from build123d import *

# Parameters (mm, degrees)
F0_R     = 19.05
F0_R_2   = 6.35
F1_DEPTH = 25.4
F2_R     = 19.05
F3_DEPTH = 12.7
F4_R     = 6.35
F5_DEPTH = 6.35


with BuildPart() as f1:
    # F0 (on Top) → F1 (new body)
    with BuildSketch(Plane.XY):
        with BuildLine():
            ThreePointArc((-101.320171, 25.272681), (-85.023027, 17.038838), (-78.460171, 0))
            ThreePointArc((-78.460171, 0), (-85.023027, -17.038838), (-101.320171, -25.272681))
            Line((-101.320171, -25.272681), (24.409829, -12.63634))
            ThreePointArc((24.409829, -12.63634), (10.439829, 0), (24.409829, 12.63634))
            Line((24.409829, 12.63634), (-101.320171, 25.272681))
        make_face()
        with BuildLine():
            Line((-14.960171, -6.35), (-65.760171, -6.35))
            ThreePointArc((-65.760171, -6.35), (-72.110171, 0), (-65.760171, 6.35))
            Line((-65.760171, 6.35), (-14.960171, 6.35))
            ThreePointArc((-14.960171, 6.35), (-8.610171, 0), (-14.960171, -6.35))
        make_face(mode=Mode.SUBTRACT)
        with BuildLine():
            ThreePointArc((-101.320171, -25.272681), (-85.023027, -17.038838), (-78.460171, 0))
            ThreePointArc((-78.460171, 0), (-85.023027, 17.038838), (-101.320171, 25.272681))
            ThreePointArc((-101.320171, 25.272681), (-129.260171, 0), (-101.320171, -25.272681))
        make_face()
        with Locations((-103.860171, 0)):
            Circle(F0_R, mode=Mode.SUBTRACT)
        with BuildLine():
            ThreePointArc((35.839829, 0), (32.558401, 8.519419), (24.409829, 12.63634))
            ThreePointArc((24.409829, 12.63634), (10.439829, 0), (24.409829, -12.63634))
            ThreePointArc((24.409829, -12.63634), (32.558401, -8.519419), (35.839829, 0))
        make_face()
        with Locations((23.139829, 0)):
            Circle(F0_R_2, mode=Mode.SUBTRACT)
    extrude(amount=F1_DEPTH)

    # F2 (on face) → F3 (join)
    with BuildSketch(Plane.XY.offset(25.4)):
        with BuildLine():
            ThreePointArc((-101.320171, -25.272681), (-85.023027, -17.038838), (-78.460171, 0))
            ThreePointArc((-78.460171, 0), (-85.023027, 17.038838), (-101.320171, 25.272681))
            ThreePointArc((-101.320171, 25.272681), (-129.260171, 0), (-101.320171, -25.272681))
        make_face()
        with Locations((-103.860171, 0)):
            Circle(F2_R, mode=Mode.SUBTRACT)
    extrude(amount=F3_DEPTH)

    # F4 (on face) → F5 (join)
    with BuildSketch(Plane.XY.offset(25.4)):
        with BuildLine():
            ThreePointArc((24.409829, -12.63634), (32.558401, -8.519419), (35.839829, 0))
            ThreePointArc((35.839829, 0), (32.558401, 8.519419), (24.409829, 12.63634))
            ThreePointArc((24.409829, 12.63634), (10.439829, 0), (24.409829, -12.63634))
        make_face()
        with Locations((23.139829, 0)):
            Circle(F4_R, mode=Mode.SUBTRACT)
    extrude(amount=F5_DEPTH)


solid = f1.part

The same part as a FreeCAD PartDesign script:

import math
import FreeCAD as App
import Part
import Sketcher
Q = App.Units.Quantity

doc = App.newDocument("Part")
body = doc.addObject("PartDesign::Body", "Body")

# Sketch on XY plane
sketch1 = body.newObject("Sketcher::SketchObject", "Sketch")
sketch1.AttachmentSupport = (doc.getObject("XY_Plane"), [""])
sketch1.MapMode = "FlatFace"
sketch1.addGeometry(Part.LineSegment(App.Vector(24.409829, 12.63634, 0), App.Vector(-101.320171, 25.272681, 0)), False)
sketch1.addGeometry(Part.ArcOfCircle(Part.Circle(App.Vector(-103.860171, 0, 0), App.Vector(0, 0, 1), 25.4), math.radians(84.26083), math.radians(275.73917)), False)
sketch1.addGeometry(Part.LineSegment(App.Vector(-101.320171, -25.272681, 0), App.Vector(24.409829, -12.63634, 0)), False)
sketch1.addGeometry(Part.ArcOfCircle(Part.Circle(App.Vector(23.13983, 0, 0), App.Vector(0, 0, 1), 12.699999), math.radians(-84.260832), math.radians(0.000001)), False)
sketch1.addGeometry(Part.ArcOfCircle(Part.Circle(App.Vector(23.13983, 0, 0), App.Vector(0, 0, 1), 12.699999), math.radians(-0.000001), math.radians(84.260832)), False)
sketch1.addGeometry(Part.Circle(App.Vector(-103.860171, 0, 0), App.Vector(0, 0, 1), 19.05), False)
sketch1.addGeometry(Part.ArcOfCircle(Part.Circle(App.Vector(-14.960171, 0, 0), App.Vector(0, 0, 1), 6.35), math.radians(-90), math.radians(90)), False)
sketch1.addGeometry(Part.LineSegment(App.Vector(-14.960171, -6.35, 0), App.Vector(-65.760171, -6.35, 0)), False)
sketch1.addGeometry(Part.ArcOfCircle(Part.Circle(App.Vector(-65.760171, 0, 0), App.Vector(0, 0, 1), 6.35), math.radians(90), math.radians(270)), False)
sketch1.addGeometry(Part.LineSegment(App.Vector(-65.760171, 6.35, 0), App.Vector(-14.960171, 6.35, 0)), False)
sketch1.addGeometry(Part.Circle(App.Vector(23.139829, 0, 0), App.Vector(0, 0, 1), 6.35), False)
sketch1.addConstraint(Sketcher.Constraint("Tangent", 0, 2, 1, 1))
sketch1.addConstraint(Sketcher.Constraint("Tangent", 1, 2, 2, 1))
sketch1.addConstraint(Sketcher.Constraint("Tangent", 2, 2, 3, 1))
sketch1.addConstraint(Sketcher.Constraint("Tangent", 3, 2, 4, 1))
sketch1.addConstraint(Sketcher.Constraint("Tangent", 4, 2, 0, 1))
sketch1.addConstraint(Sketcher.Constraint("Tangent", 6, 1, 7, 1))
sketch1.addConstraint(Sketcher.Constraint("Tangent", 7, 2, 8, 2))
sketch1.addConstraint(Sketcher.Constraint("Tangent", 8, 1, 9, 1))
sketch1.addConstraint(Sketcher.Constraint("Tangent", 9, 2, 6, 2))
sketch1.addConstraint(Sketcher.Constraint("Horizontal", 7))
sketch1.addConstraint(Sketcher.Constraint("Horizontal", 9))
sketch1.addConstraint(Sketcher.Constraint("Coincident", 5, 3, 1, 3))
sketch1.addConstraint(Sketcher.Constraint("Coincident", 10, 3, 3, 3))
sketch1.addConstraint(Sketcher.Constraint("Equal", 3, 4))
sketch1.addConstraint(Sketcher.Constraint("Equal", 8, 10))
sketch1.addConstraint(Sketcher.Constraint("Symmetric", 0, 2, 1, 2, -1))
sketch1.addConstraint(Sketcher.Constraint("PointOnObject", 6, 3, -1))
sketch1.addConstraint(Sketcher.Constraint("PointOnObject", 3, 2, -1))
sketch1.addConstraint(Sketcher.Constraint("Radius", 1, Q("1 in")))
sketch1.addConstraint(Sketcher.Constraint("Diameter", 5, Q("1.5 in")))
sketch1.addConstraint(Sketcher.Constraint("Diameter", 10, Q("0.5 in")))
sketch1.addConstraint(Sketcher.Constraint("Radius", 3, Q("0.5 in")))
sketch1.addConstraint(Sketcher.Constraint("DistanceX", 7, 2, 7, 1, Q("2 in")))
sketch1.addConstraint(Sketcher.Constraint("DistanceX", 1, 3, 3, 3, Q("5 in")))
sketch1.addConstraint(Sketcher.Constraint("DistanceX", 6, 3, 3, 2, Q("2 in")))
sketch1.addConstraint(Sketcher.Constraint("DistanceX", 1, 3, -1, 1, Q("103.860171 mm")))
pad1 = body.newObject("PartDesign::Pad", "Pad")
pad1.Profile = sketch1
pad1.Length = Q("1 in")

# Sketch on XY plane
sketch2 = body.newObject("Sketcher::SketchObject", "Sketch001")
sketch2.AttachmentSupport = (doc.getObject("XY_Plane"), [""])
sketch2.MapMode = "FlatFace"
sketch2.AttachmentOffset = App.Placement(App.Vector(0, 0, 1 * 25.4), App.Rotation())
sketch2.addGeometry(Part.ArcOfCircle(Part.Circle(App.Vector(-103.860172, 0, 0), App.Vector(0, 0, 1), 25.400001), math.radians(-84.260829), math.radians(-0.000001)), False)
sketch2.addGeometry(Part.ArcOfCircle(Part.Circle(App.Vector(-103.860172, 0, 0), App.Vector(0, 0, 1), 25.400001), math.radians(0.000001), math.radians(84.260829)), False)
sketch2.addGeometry(Part.ArcOfCircle(Part.Circle(App.Vector(-103.860171, 0, 0), App.Vector(0, 0, 1), 25.4), math.radians(84.26083), math.radians(275.73917)), False)
sketch2.addGeometry(Part.Circle(App.Vector(-103.860171, 0, 0), App.Vector(0, 0, 1), 19.05), False)
sketch2.addConstraint(Sketcher.Constraint("Tangent", 0, 2, 1, 1))
sketch2.addConstraint(Sketcher.Constraint("Tangent", 1, 2, 2, 1))
sketch2.addConstraint(Sketcher.Constraint("Tangent", 2, 2, 0, 1))
sketch2.addConstraint(Sketcher.Constraint("Coincident", 3, 3, 0, 3))
sketch2.addConstraint(Sketcher.Constraint("Symmetric", 1, 2, 2, 2, -1))
sketch2.addConstraint(Sketcher.Constraint("PointOnObject", 0, 2, -1))
sketch2.addConstraint(Sketcher.Constraint("Radius", 0, Q("1 in")))
sketch2.addConstraint(Sketcher.Constraint("Diameter", 3, Q("1.5 in")))
sketch2.addConstraint(Sketcher.Constraint("DistanceX", 0, 3, 1, 2, Q("0.1 in")))
sketch2.addConstraint(Sketcher.Constraint("DistanceX", 0, 3, -1, 1, Q("103.860172 mm")))
pad2 = body.newObject("PartDesign::Pad", "Pad001")
pad2.Profile = sketch2
pad2.Length = Q("0.5 in")

# Sketch on XY plane
sketch3 = body.newObject("Sketcher::SketchObject", "Sketch002")
sketch3.AttachmentSupport = (doc.getObject("XY_Plane"), [""])
sketch3.MapMode = "FlatFace"
sketch3.AttachmentOffset = App.Placement(App.Vector(0, 0, 1 * 25.4), App.Rotation())
sketch3.addGeometry(Part.ArcOfCircle(Part.Circle(App.Vector(23.13983, 0, 0), App.Vector(0, 0, 1), 12.699999), math.radians(-84.260832), math.radians(0.000001)), False)
sketch3.addGeometry(Part.ArcOfCircle(Part.Circle(App.Vector(23.13983, 0, 0), App.Vector(0, 0, 1), 12.699999), math.radians(-0.000001), math.radians(84.260832)), False)
sketch3.addGeometry(Part.ArcOfCircle(Part.Circle(App.Vector(23.139829, 0, 0), App.Vector(0, 0, 1), 12.7), math.radians(84.260827), math.radians(275.739173)), False)
sketch3.addGeometry(Part.Circle(App.Vector(23.139829, 0, 0), App.Vector(0, 0, 1), 6.35), False)
sketch3.addConstraint(Sketcher.Constraint("Tangent", 0, 2, 1, 1))
sketch3.addConstraint(Sketcher.Constraint("Tangent", 1, 2, 2, 1))
sketch3.addConstraint(Sketcher.Constraint("Tangent", 2, 2, 0, 1))
sketch3.addConstraint(Sketcher.Constraint("Coincident", 3, 3, 0, 3))
sketch3.addConstraint(Sketcher.Constraint("Symmetric", 1, 2, 2, 2, -1))
sketch3.addConstraint(Sketcher.Constraint("PointOnObject", 0, 2, -1))
sketch3.addConstraint(Sketcher.Constraint("Diameter", 3, Q("0.5 in")))
sketch3.addConstraint(Sketcher.Constraint("Radius", 0, Q("0.5 in")))
sketch3.addConstraint(Sketcher.Constraint("DistanceX", 1, 3, 1, 2, Q("0.05 in")))
sketch3.addConstraint(Sketcher.Constraint("DistanceX", -1, 1, 0, 3, Q("23.13983 mm")))
pad3 = body.newObject("PartDesign::Pad", "Pad002")
pad3.Profile = sketch3
pad3.Length = Q("0.25 in")

doc.recompute()
